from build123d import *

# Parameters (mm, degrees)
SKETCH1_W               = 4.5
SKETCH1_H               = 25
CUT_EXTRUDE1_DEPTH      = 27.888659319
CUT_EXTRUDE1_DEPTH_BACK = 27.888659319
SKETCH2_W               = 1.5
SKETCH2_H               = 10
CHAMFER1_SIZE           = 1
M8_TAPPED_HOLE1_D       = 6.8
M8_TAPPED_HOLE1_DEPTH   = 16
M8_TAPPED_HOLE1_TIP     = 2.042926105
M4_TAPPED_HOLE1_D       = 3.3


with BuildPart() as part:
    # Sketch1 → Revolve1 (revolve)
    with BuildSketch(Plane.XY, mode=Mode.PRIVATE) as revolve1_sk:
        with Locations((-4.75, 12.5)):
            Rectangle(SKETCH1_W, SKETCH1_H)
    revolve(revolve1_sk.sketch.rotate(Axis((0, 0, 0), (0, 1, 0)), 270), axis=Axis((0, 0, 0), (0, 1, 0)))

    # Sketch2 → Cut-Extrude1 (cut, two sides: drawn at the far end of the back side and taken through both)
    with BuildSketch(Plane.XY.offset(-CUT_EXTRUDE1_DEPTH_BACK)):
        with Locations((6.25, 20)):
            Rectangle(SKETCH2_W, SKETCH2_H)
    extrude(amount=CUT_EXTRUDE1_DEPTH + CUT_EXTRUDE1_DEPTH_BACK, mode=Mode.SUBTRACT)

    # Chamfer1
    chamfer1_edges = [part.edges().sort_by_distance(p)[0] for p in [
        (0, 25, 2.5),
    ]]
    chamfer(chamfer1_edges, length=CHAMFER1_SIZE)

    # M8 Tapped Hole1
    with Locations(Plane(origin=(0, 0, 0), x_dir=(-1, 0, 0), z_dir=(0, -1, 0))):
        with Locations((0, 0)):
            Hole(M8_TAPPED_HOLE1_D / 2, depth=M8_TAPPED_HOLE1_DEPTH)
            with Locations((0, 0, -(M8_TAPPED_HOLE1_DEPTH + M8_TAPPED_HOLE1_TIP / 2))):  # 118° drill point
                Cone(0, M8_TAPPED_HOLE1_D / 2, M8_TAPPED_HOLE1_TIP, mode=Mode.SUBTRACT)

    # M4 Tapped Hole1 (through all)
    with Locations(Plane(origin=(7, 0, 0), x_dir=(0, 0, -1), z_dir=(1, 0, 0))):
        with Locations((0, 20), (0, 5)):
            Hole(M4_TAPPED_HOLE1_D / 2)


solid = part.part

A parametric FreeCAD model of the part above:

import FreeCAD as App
import Part
import Sketcher
from FreeCAD import Vector
Q = App.Units.Quantity


def edges_at(feature, points):
    """Names of the edges that pass closest to the given points."""
    edges = feature.Shape.Edges
    near = lambda p: min(range(len(edges)), key=lambda i: edges[i].distToShape(Part.Vertex(*p))[0])
    return sorted({f"Edge{near(p) + 1}" for p in points})

doc = App.newDocument("Part")
body = doc.addObject("PartDesign::Body", "Body")

sketch1 = doc.addObject("Sketcher::SketchObject", "Sketch")
body.addObject(sketch1)
sketch1.AttachmentSupport = (doc.XY_Plane, [""])
sketch1.MapMode = "FlatFace"
sketch1.addGeometry([
    Part.LineSegment(Vector(-7, 25, 0), Vector(-7, 0, 0)),
    Part.LineSegment(Vector(-7, 0, 0), Vector(-2.5, 0, 0)),
    Part.LineSegment(Vector(-2.5, 0, 0), Vector(-2.5, 25, 0)),
    Part.LineSegment(Vector(-2.5, 25, 0), Vector(-7, 25, 0)),
], False)
sketch1.addConstraint([
    Sketcher.Constraint("Coincident", 0, 2, 1, 1),
    Sketcher.Constraint("Coincident", 1, 2, 2, 1),
    Sketcher.Constraint("Coincident", 2, 2, 3, 1),
    Sketcher.Constraint("Coincident", 3, 2, 0, 1),
    Sketcher.Constraint("Vertical", 0),
    Sketcher.Constraint("Horizontal", 1),
    Sketcher.Constraint("Vertical", 2),
    Sketcher.Constraint("Horizontal", 3),
    Sketcher.Constraint("PointOnObject", 0, 2, -1),
    Sketcher.Constraint("DistanceY", 0, 2, 0, 1, Q("25 mm")),
    Sketcher.Constraint("DistanceX", 1, 1, 1, 2, Q("4.5 mm")),
    Sketcher.Constraint("DistanceX", 0, 2, -1, 1, Q("7 mm")),
])
revolution = doc.addObject("PartDesign::Revolution", "Revolution")
body.addObject(revolution)
revolution.Profile = sketch1
revolution.ReferenceAxis = (sketch1, ["V_Axis"])
revolution.Angle = 360

sketch2 = doc.addObject("Sketcher::SketchObject", "Sketch001")
body.addObject(sketch2)
sketch2.AttachmentSupport = (doc.XY_Plane, [""])
sketch2.MapMode = "FlatFace"
sketch2.addGeometry([
    Part.LineSegment(Vector(5.5, 25, 0), Vector(5.5, 15, 0)),
    Part.LineSegment(Vector(5.5, 15, 0), Vector(7, 15, 0)),
    Part.LineSegment(Vector(7, 15, 0), Vector(7, 25, 0)),
    Part.LineSegment(Vector(7, 25, 0), Vector(5.5, 25, 0)),
], False)
sketch2.addConstraint([
    Sketcher.Constraint("Coincident", 0, 2, 1, 1),
    Sketcher.Constraint("Coincident", 1, 2, 2, 1),
    Sketcher.Constraint("Coincident", 2, 2, 3, 1),
    Sketcher.Constraint("Coincident", 3, 2, 0, 1),
    Sketcher.Constraint("Vertical", 0),
    Sketcher.Constraint("Horizontal", 1),
    Sketcher.Constraint("Vertical", 2),
    Sketcher.Constraint("Horizontal", 3),
    Sketcher.Constraint("DistanceY", 0, 2, 0, 1, Q("10 mm")),
    Sketcher.Constraint("DistanceX", 1, 1, 1, 2, Q("1.5 mm")),
    Sketcher.Constraint("DistanceY", -1, 1, 0, 2, Q("15 mm")),
    Sketcher.Constraint("DistanceX", -1, 1, 1, 2, Q("7 mm")),
])
pocket1 = doc.addObject("PartDesign::Pocket", "Pocket")
body.addObject(pocket1)
pocket1.Profile = sketch2
pocket1.Type = "ThroughAll"
pocket1.Midplane = True
doc.recompute()

chamfer = doc.addObject("PartDesign::Chamfer", "Chamfer")
body.addObject(chamfer)
chamfer.Base = (pocket1, edges_at(pocket1, [(0, 25, 2.5)]))
chamfer.Size = 1

sketch3 = doc.addObject("Sketcher::SketchObject", "Sketch002")
body.addObject(sketch3)
sketch3.AttachmentSupport = (doc.XZ_Plane, [""])
sketch3.MapMode = "FlatFace"
sketch3.addGeometry(Part.Circle(Vector(0, 0, 0), Vector(0, 0, 1), 3.4), False)
sketch3.addConstraint([
    Sketcher.Constraint("Coincident", 0, 3, -1, 1),
    Sketcher.Constraint("Diameter", 0, Q("6.8 mm")),
])
doc.recompute()
hole = doc.addObject("PartDesign::Hole", "Hole")
body.addObject(hole)
hole.Profile = sketch3
hole.ThreadType = "None"
hole.Diameter = 6.8
hole.DepthType = "Dimension"
hole.Depth = 16
hole.DrillPoint = "Angled"
hole.DrillPointAngle = 118

sketch4 = doc.addObject("Sketcher::SketchObject", "Sketch003")
body.addObject(sketch4)
sketch4.AttachmentSupport = (doc.YZ_Plane, [""])
sketch4.MapMode = "FlatFace"
sketch4.AttachmentOffset = App.Placement(Vector(0, 0, 7), App.Rotation())
sketch4.addGeometry([
    Part.Circle(Vector(20, 0, 0), Vector(0, 0, 1), 1.6),
    Part.Circle(Vector(5, 0, 0), Vector(0, 0, 1), 1.6),
], False)
sketch4.addConstraint([
    Sketcher.Constraint("Equal", 0, 1),
    Sketcher.Constraint("PointOnObject", 0, 3, -1),
    Sketcher.Constraint("PointOnObject", 1, 3, -1),
    Sketcher.Constraint("Diameter", 0, Q("3.3 mm")),
    Sketcher.Constraint("DistanceX", -1, 1, 0, 3, Q("20 mm")),
    Sketcher.Constraint("DistanceX", -1, 1, 1, 3, Q("5 mm")),
])
doc.recompute()
hole2 = doc.addObject("PartDesign::Hole", "Hole001")
body.addObject(hole2)
hole2.Profile = sketch4
hole2.ThreadType = "None"
hole2.Diameter = 3.3
hole2.DepthType = "ThroughAll"

doc.recompute()
